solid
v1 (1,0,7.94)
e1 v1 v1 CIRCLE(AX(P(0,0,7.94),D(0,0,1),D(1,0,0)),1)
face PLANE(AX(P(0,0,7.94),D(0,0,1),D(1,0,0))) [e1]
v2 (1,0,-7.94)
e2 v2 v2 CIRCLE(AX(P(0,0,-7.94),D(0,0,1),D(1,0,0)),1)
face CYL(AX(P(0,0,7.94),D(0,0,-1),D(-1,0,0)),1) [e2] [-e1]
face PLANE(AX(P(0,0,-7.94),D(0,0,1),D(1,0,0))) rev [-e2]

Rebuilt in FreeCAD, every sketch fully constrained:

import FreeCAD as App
import Part
import Sketcher

doc = App.newDocument("Part")
params = doc.addObject("Spreadsheet::Sheet", "Params")
for row, (alias, value) in enumerate([
    ("sketch1_diameter", "2 mm"),
    ("pad1_length", "15.88 mm"),
], start=1):
    params.set(f"A{row}", alias)
    params.set(f"B{row}", "=" + value)
    params.setAlias(f"B{row}", alias)

body = doc.addObject("PartDesign::Body", "Body")

# Sketch on XY plane
sketch1 = body.newObject("Sketcher::SketchObject", "Sketch")
sketch1.AttachmentSupport = (doc.getObject("XY_Plane"), [""])
sketch1.MapMode = "FlatFace"
sketch1.addGeometry(Part.Circle(App.Vector(0, 0, 0), App.Vector(0, 0, 1), 1), False)
sketch1.addConstraint([
    Sketcher.Constraint("Coincident", 0, 3, -1, 1),
    Sketcher.Constraint("Diameter", 0, 2.0),
])
sketch1.setExpression("Constraints[1]", "Params.sketch1_diameter")
pad1 = body.newObject("PartDesign::Pad", "Pad")
pad1.Profile = sketch1
pad1.setExpression("Length", "Params.pad1_length")
pad1.Midplane = True

doc.recompute()
